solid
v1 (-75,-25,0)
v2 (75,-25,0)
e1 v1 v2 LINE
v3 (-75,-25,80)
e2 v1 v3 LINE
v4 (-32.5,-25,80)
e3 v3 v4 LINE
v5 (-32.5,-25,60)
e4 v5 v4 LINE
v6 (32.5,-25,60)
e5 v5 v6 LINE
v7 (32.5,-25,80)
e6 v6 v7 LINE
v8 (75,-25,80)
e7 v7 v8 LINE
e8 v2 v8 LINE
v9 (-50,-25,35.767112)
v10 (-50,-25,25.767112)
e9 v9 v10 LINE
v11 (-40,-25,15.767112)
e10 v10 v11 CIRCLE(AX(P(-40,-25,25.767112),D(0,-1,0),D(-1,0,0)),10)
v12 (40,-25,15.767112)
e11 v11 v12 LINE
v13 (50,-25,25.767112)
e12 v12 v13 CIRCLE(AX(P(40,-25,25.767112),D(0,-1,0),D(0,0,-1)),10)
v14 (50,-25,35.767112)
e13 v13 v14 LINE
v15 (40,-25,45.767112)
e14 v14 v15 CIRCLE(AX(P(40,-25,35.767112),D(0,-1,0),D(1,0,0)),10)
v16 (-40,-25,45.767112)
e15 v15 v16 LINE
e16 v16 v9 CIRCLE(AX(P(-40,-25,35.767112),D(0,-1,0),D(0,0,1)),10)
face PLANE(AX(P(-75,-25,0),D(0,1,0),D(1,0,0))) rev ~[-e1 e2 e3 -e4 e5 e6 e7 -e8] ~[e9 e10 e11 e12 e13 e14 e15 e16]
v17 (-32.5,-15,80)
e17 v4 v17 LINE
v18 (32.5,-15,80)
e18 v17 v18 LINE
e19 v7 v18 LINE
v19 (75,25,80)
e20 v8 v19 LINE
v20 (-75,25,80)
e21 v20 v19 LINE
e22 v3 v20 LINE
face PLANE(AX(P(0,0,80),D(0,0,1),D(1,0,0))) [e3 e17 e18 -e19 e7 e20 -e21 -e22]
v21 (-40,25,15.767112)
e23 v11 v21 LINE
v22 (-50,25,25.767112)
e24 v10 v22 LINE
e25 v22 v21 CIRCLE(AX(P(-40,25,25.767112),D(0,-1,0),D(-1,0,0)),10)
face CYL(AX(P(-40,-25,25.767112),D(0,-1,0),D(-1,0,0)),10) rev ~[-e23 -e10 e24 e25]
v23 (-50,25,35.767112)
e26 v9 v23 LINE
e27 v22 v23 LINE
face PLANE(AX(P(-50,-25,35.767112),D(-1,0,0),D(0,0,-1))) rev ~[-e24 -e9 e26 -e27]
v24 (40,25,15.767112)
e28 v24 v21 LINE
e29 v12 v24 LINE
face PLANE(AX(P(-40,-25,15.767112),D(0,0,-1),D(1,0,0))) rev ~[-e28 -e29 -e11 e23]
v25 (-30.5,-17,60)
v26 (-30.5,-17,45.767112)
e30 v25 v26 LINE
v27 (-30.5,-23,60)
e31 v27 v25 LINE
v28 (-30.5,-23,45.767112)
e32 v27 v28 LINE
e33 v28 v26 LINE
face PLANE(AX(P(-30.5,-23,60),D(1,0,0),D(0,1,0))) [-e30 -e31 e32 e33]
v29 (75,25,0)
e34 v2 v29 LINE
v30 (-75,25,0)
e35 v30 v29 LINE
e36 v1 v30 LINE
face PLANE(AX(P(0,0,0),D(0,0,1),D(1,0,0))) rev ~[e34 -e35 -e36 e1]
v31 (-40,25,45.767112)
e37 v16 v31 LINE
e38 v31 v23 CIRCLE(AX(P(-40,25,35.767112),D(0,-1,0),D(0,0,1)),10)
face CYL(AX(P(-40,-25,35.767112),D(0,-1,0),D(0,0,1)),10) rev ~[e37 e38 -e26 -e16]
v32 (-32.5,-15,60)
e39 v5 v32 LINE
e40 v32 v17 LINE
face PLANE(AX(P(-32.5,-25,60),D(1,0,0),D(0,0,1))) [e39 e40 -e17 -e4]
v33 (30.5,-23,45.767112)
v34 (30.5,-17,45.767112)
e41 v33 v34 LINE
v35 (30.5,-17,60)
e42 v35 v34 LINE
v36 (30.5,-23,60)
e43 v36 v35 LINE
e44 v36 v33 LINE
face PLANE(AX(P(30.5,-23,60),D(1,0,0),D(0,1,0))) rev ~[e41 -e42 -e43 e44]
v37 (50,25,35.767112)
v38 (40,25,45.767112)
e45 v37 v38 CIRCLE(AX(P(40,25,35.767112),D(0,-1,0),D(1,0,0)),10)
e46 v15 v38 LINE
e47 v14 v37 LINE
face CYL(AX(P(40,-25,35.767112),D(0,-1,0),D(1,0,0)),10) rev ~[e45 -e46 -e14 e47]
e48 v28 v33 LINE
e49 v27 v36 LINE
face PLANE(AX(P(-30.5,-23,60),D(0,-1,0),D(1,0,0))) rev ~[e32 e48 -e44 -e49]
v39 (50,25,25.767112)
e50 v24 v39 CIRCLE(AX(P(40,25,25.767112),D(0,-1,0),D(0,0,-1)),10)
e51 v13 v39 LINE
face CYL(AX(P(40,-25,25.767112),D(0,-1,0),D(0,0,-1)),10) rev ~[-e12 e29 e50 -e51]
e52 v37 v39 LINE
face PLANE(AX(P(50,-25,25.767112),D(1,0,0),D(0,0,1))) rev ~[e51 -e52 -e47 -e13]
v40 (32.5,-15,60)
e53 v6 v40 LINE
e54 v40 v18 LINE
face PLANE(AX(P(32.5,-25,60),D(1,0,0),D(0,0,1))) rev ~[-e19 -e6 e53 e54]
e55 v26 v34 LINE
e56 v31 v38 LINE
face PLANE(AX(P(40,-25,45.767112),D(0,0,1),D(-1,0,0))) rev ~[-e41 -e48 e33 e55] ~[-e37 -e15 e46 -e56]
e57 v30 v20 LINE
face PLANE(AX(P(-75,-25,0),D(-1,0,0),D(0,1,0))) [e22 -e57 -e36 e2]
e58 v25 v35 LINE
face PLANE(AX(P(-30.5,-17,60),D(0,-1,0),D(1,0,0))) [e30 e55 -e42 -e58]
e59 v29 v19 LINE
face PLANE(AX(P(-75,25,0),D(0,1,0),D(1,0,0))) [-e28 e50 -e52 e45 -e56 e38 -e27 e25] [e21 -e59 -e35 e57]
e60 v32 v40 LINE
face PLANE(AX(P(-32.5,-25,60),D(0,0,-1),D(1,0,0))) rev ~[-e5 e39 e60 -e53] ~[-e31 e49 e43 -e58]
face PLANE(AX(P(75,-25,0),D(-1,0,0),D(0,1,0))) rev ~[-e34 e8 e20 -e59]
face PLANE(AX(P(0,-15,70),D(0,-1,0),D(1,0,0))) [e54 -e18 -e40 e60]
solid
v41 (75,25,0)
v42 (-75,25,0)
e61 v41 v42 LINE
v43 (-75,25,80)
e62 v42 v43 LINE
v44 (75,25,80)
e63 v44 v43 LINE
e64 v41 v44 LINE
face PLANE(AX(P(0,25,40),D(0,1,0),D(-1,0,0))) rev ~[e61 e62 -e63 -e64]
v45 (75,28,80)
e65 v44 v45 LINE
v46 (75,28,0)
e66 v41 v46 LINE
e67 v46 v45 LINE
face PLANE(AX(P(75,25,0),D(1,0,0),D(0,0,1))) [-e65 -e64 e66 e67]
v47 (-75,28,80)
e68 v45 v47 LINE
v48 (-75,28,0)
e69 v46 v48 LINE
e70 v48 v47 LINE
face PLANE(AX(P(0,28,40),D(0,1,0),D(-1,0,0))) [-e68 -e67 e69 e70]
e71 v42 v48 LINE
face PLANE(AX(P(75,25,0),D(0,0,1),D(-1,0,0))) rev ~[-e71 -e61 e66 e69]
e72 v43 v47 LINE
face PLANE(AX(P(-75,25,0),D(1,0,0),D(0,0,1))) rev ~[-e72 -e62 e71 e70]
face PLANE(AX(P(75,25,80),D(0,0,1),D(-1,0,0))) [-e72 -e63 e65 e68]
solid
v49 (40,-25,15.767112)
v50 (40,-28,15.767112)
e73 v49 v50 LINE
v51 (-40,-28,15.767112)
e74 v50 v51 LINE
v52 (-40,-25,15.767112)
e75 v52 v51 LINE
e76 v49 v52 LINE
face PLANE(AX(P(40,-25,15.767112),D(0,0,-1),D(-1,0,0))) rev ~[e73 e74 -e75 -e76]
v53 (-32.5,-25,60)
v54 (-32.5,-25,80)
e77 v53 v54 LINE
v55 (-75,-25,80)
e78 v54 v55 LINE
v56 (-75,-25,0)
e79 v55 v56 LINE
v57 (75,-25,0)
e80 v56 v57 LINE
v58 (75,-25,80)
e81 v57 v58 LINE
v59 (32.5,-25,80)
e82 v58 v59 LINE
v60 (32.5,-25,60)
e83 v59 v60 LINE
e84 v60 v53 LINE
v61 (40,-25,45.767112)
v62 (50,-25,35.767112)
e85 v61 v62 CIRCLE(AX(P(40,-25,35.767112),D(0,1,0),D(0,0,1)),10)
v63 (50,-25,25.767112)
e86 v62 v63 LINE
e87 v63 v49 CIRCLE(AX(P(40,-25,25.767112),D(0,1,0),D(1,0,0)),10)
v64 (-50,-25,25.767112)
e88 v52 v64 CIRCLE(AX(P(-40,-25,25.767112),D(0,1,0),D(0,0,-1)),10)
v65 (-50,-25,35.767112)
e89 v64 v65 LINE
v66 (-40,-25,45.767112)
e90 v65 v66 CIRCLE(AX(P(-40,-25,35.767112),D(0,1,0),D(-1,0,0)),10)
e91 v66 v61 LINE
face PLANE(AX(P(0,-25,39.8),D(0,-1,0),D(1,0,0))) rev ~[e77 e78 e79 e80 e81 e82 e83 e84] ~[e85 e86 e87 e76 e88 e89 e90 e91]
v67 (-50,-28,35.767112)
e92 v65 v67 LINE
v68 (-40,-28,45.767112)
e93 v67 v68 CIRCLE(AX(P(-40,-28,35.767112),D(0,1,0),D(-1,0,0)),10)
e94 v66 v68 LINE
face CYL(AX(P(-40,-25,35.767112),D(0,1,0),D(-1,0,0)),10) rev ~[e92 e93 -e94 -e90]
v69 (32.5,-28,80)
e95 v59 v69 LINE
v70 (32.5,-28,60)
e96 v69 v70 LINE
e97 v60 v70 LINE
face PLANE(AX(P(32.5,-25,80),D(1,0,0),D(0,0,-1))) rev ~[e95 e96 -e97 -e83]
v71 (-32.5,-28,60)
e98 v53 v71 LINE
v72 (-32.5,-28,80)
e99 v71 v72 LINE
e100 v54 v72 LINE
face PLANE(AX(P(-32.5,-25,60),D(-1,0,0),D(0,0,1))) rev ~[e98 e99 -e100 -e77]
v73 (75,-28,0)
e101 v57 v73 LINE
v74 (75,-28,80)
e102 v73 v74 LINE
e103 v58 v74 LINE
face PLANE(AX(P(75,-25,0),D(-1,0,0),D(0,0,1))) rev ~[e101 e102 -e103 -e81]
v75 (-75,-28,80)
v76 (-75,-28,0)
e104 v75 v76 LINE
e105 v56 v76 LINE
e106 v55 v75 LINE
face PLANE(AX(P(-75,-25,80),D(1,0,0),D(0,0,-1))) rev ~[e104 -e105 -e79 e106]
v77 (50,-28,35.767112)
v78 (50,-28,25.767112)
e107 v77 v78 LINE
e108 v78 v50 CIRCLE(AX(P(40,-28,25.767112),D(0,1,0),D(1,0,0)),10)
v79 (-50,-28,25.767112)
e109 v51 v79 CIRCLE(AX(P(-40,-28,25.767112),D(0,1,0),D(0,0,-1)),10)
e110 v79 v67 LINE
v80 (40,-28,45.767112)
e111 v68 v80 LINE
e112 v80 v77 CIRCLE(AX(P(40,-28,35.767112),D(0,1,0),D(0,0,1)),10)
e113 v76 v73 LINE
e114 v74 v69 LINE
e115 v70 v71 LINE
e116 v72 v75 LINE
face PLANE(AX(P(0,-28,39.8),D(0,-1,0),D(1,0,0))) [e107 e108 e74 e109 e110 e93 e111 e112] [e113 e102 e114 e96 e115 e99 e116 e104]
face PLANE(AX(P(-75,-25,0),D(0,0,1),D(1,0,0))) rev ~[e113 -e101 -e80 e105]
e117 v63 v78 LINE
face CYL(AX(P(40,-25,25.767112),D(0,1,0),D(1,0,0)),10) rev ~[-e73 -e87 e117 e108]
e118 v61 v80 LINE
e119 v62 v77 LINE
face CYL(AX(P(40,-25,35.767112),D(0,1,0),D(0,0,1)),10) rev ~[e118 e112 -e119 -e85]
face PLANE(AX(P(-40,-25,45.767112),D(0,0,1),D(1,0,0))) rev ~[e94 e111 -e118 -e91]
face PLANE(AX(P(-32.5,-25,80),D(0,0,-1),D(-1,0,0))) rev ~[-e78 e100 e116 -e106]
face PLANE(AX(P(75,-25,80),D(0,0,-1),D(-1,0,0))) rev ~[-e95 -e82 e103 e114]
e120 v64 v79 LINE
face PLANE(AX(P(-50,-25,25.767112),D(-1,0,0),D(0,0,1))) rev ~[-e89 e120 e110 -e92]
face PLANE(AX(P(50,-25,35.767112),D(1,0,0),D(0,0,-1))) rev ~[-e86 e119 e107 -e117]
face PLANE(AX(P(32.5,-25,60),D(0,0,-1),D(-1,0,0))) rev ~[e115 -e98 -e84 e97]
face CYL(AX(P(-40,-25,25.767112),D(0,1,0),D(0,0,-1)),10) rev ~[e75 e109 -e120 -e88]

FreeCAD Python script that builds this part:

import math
import FreeCAD as App
import Part
import Sketcher

V = App.Vector


def add_polygon(sketch, points):
    """Adds a closed chain of lines whose ends are joined by coincident constraints."""
    first, n = sketch.GeometryCount, len(points)
    for a, b in zip(points, points[1:] + points[:1]):
        sketch.addGeometry(Part.LineSegment(App.Vector(*a, 0), App.Vector(*b, 0)), False)
    for i in range(n):
        sketch.addConstraint(Sketcher.Constraint("Coincident", first + i, 2, first + (i + 1) % n, 1))

doc = App.newDocument("Part")
body = doc.addObject("PartDesign::Body", "Body")

sketch1 = body.newObject("Sketcher::SketchObject", "Sketch")
sketch1.AttachmentSupport = (doc.getObject("XY_Plane"), [""])
sketch1.MapMode = "FlatFace"
add_polygon(sketch1, [(-75, 25), (-75, -25), (75, -25), (75, 25)])
sketch1.addConstraint([
    Sketcher.Constraint("Vertical", 0),
    Sketcher.Constraint("Horizontal", 1),
    Sketcher.Constraint("Vertical", 2),
    Sketcher.Constraint("Horizontal", 3),
    Sketcher.Constraint("Symmetric", 0, 2, 2, 2, -1, 1),
    Sketcher.Constraint("DistanceX", 1, 1, 1, 2, 150.0),
    Sketcher.Constraint("DistanceY", 0, 2, 0, 1, 50.0),
])
pad1 = body.newObject("PartDesign::Pad", "Pad")
pad1.Profile = sketch1
pad1.Length = 80

sketch2 = body.newObject("Sketcher::SketchObject", "Sketch001")
sketch2.AttachmentSupport = (doc.getObject("XZ_Plane"), [""])
sketch2.MapMode = "FlatFace"
sketch2.AttachmentOffset = App.Placement(V(0, 0, 25), App.Rotation())
add_polygon(sketch2, [(-32.5, 80), (-32.5, 60), (32.5, 60), (32.5, 80)])
sketch2.addConstraint([
    Sketcher.Constraint("Vertical", 0),
    Sketcher.Constraint("Horizontal", 1),
    Sketcher.Constraint("Vertical", 2),
    Sketcher.Constraint("Horizontal", 3),
    Sketcher.Constraint("DistanceX", 1, 1, 1, 2, 65.0),
    Sketcher.Constraint("DistanceY", 0, 2, 0, 1, 20.0),
    Sketcher.Constraint("DistanceY", -1, 1, 0, 2, 60.0),
    Sketcher.Constraint("DistanceX", 0, 2, -1, 1, 32.5),
])
pocket1 = body.newObject("PartDesign::Pocket", "Pocket")
pocket1.Profile = sketch2
pocket1.Length = 10

sketch3 = body.newObject("Sketcher::SketchObject", "Sketch002")
sketch3.AttachmentSupport = (doc.getObject("XZ_Plane"), [""])
sketch3.MapMode = "FlatFace"
sketch3.AttachmentOffset = App.Placement(V(0, 0, 25), App.Rotation())
sketch3.addGeometry([
    Part.LineSegment(V(40, 45.767112, 0), V(-40, 45.767112, 0)),
    Part.ArcOfCircle(Part.Circle(V(-40, 35.767112, 0), V(0, 0, 1), 10), math.radians(90), math.radians(180)),
    Part.LineSegment(V(-50, 35.767112, 0), V(-50, 25.767112, 0)),
    Part.ArcOfCircle(Part.Circle(V(-40, 25.767112, 0), V(0, 0, 1), 10), math.radians(180), math.radians(270)),
    Part.LineSegment(V(-40, 15.767112, 0), V(40, 15.767112, 0)),
    Part.ArcOfCircle(Part.Circle(V(40, 25.767112, 0), V(0, 0, 1), 10), math.radians(-90), math.radians(0)),
    Part.LineSegment(V(50, 25.767112, 0), V(50, 35.767112, 0)),
    Part.ArcOfCircle(Part.Circle(V(40, 35.767112, 0), V(0, 0, 1), 10), math.radians(0), math.radians(90)),
], False)
sketch3.addConstraint([
    Sketcher.Constraint("Tangent", 0, 2, 1, 1),
    Sketcher.Constraint("Tangent", 1, 2, 2, 1),
    Sketcher.Constraint("Tangent", 2, 2, 3, 1),
    Sketcher.Constraint("Tangent", 3, 2, 4, 1),
    Sketcher.Constraint("Tangent", 4, 2, 5, 1),
    Sketcher.Constraint("Tangent", 5, 2, 6, 1),
    Sketcher.Constraint("Tangent", 6, 2, 7, 1),
    Sketcher.Constraint("Tangent", 7, 2, 0, 1),
    Sketcher.Constraint("Horizontal", 0),
    Sketcher.Constraint("Vertical", 2),
    Sketcher.Constraint("Horizontal", 4),
    Sketcher.Constraint("Vertical", 6),
    Sketcher.Constraint("Equal", 1, 3),
    Sketcher.Constraint("Equal", 3, 5),
    Sketcher.Constraint("Equal", 5, 7),
    Sketcher.Constraint("Radius", 1, 10.0),
    Sketcher.Constraint("DistanceX", 0, 2, 0, 1, 80.0),
    Sketcher.Constraint("DistanceY", 2, 2, 2, 1, 10.0),
    Sketcher.Constraint("DistanceX", 1, 3, -1, 1, 40.0),
    Sketcher.Constraint("DistanceY", -1, 1, 1, 3, 35.767112),
])
pocket2 = body.newObject("PartDesign::Pocket", "Pocket001")
pocket2.Profile = sketch3
pocket2.Length = 67.4

sketch4 = body.newObject("Sketcher::SketchObject", "Sketch003")
sketch4.AttachmentSupport = (doc.getObject("XY_Plane"), [""])
sketch4.MapMode = "FlatFace"
sketch4.AttachmentOffset = App.Placement(V(0, 0, 60), App.Rotation())
add_polygon(sketch4, [(-30.5, -17), (-30.5, -23), (30.5, -23), (30.5, -17)])
sketch4.addConstraint([
    Sketcher.Constraint("Vertical", 0),
    Sketcher.Constraint("Horizontal", 1),
    Sketcher.Constraint("Vertical", 2),
    Sketcher.Constraint("Horizontal", 3),
    Sketcher.Constraint("DistanceX", 1, 1, 1, 2, 61.0),
    Sketcher.Constraint("DistanceY", 0, 2, 0, 1, 6.0),
    Sketcher.Constraint("DistanceY", 0, 2, -1, 1, 23.0),
    Sketcher.Constraint("DistanceX", 0, 2, -1, 1, 30.5),
])
pocket3 = body.newObject("PartDesign::Pocket", "Pocket002")
pocket3.Profile = sketch4
pocket3.Length = 25
body2 = doc.addObject("PartDesign::Body", "Body001")

sketch5 = body2.newObject("Sketcher::SketchObject", "Sketch004")
sketch5.AttachmentSupport = (doc.getObject("XZ_Plane001"), [""])
sketch5.MapMode = "FlatFace"
sketch5.AttachmentOffset = App.Placement(V(0, 0, 25), App.Rotation())
add_polygon(sketch5, [(-32.5, 80), (-75, 80), (-75, 0), (75, 0), (75, 80), (32.5, 80), (32.5, 60), (-32.5, 60)])
sketch5.addGeometry(Part.LineSegment(V(-50, 25.767112, 0), V(-50, 35.767112, 0)), False)
sketch5.addGeometry(Part.ArcOfCircle(Part.Circle(V(-40, 35.767112, 0), V(0, 0, 1), 10), math.radians(90), math.radians(180)), False)
sketch5.addGeometry(Part.LineSegment(V(-40, 45.767112, 0), V(40, 45.767112, 0)), False)
sketch5.addGeometry(Part.ArcOfCircle(Part.Circle(V(40, 35.767112, 0), V(0, 0, 1), 10), math.radians(0), math.radians(90)), False)
sketch5.addGeometry(Part.LineSegment(V(50, 35.767112, 0), V(50, 25.767112, 0)), False)
sketch5.addGeometry(Part.ArcOfCircle(Part.Circle(V(40, 25.767112, 0), V(0, 0, 1), 10), math.radians(-90), math.radians(0)), False)
sketch5.addGeometry(Part.LineSegment(V(40, 15.767112, 0), V(-40, 15.767112, 0)), False)
sketch5.addGeometry(Part.ArcOfCircle(Part.Circle(V(-40, 25.767112, 0), V(0, 0, 1), 10), math.radians(180), math.radians(270)), False)
sketch5.addConstraint([
    Sketcher.Constraint("Tangent", 8, 2, 9, 2),
    Sketcher.Constraint("Tangent", 9, 1, 10, 1),
    Sketcher.Constraint("Tangent", 10, 2, 11, 2),
    Sketcher.Constraint("Tangent", 11, 1, 12, 1),
    Sketcher.Constraint("Tangent", 12, 2, 13, 2),
    Sketcher.Constraint("Tangent", 13, 1, 14, 1),
    Sketcher.Constraint("Tangent", 14, 2, 15, 2),
    Sketcher.Constraint("Tangent", 15, 1, 8, 1),
    Sketcher.Constraint("Horizontal", 0),
    Sketcher.Constraint("Vertical", 1),
    Sketcher.Constraint("Horizontal", 2),
    Sketcher.Constraint("Vertical", 3),
    Sketcher.Constraint("Horizontal", 4),
    Sketcher.Constraint("Vertical", 5),
    Sketcher.Constraint("Horizontal", 6),
    Sketcher.Constraint("Vertical", 7),
    Sketcher.Constraint("Vertical", 8),
    Sketcher.Constraint("Horizontal", 10),
    Sketcher.Constraint("Vertical", 12),
    Sketcher.Constraint("Horizontal", 14),
    Sketcher.Constraint("Equal", 9, 11),
    Sketcher.Constraint("Equal", 11, 13),
    Sketcher.Constraint("Equal", 13, 15),
    Sketcher.Constraint("Symmetric", 1, 2, 2, 2, -1, 1),
    Sketcher.Constraint("Symmetric", 4, 2, 7, 2, -2),
    Sketcher.Constraint("Equal", 14, 1),
    Sketcher.Constraint("Radius", 9, 10.0),
    Sketcher.Constraint("DistanceX", 2, 1, 2, 2, 150.0),
    Sketcher.Constraint("DistanceX", 6, 2, 6, 1, 65.0),
    Sketcher.Constraint("DistanceX", 10, 1, 10, 2, 80.0),
    Sketcher.Constraint("DistanceY", 5, 2, 5, 1, 20.0),
    Sketcher.Constraint("DistanceY", 8, 1, 8, 2, 10.0),
    Sketcher.Constraint("DistanceX", 9, 3, -1, 1, 40.0),
    Sketcher.Constraint("DistanceY", -1, 1, 9, 3, 35.767112),
])
pad2 = body2.newObject("PartDesign::Pad", "Pad001")
pad2.Profile = sketch5
pad2.Length = 3
body3 = doc.addObject("PartDesign::Body", "Body002")

sketch6 = body3.newObject("Sketcher::SketchObject", "Sketch005")
sketch6.AttachmentSupport = (doc.getObject("XZ_Plane002"), [""])
sketch6.MapMode = "FlatFace"
sketch6.AttachmentOffset = App.Placement(V(0, 0, -25), App.Rotation())
add_polygon(sketch6, [(75, 80), (75, 0), (-75, 0), (-75, 80)])
sketch6.addConstraint([
    Sketcher.Constraint("Vertical", 0),
    Sketcher.Constraint("Horizontal", 1),
    Sketcher.Constraint("Vertical", 2),
    Sketcher.Constraint("Horizontal", 3),
    Sketcher.Constraint("Symmetric", 0, 2, 1, 2, -1, 1),
    Sketcher.Constraint("DistanceX", 1, 2, 1, 1, 150.0),
    Sketcher.Constraint("DistanceY", 0, 2, 0, 1, 80.0),
])
pad3 = body3.newObject("PartDesign::Pad", "Pad002")
pad3.Profile = sketch6
pad3.Length = 3
pad3.Reversed = True

doc.recompute()
